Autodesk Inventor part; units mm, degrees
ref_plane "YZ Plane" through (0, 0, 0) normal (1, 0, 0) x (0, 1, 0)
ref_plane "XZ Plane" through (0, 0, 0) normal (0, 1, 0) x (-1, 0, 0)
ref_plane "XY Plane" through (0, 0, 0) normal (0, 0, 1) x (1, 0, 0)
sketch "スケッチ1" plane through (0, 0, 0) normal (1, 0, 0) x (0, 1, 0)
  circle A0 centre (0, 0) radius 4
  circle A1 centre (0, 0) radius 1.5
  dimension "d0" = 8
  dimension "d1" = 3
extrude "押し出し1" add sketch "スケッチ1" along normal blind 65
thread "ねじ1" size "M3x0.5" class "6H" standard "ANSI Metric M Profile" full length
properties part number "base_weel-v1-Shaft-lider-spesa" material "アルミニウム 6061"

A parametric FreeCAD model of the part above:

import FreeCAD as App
import Part
import Sketcher
from FreeCAD import Vector
Q = App.Units.Quantity

doc = App.newDocument("Part")
body = doc.addObject("PartDesign::Body", "Body")

sketch1 = doc.addObject("Sketcher::SketchObject", "Sketch")
body.addObject(sketch1)
sketch1.AttachmentSupport = (doc.YZ_Plane, [""])
sketch1.MapMode = "FlatFace"
sketch1.addGeometry([
    Part.Circle(Vector(0, 0, 0), Vector(0, 0, 1), 4),
    Part.Circle(Vector(0, 0, 0), Vector(0, 0, 1), 1.5),
], False)
sketch1.addConstraint([
    Sketcher.Constraint("Coincident", 0, 3, -1, 1),
    Sketcher.Constraint("Coincident", 1, 3, -1, 1),
    Sketcher.Constraint("Diameter", 0, Q("8 mm")),
    Sketcher.Constraint("Diameter", 1, Q("3 mm")),
])
pad1 = doc.addObject("PartDesign::Pad", "Pad")
body.addObject(pad1)
pad1.Profile = sketch1
pad1.Length = 65

doc.recompute()
